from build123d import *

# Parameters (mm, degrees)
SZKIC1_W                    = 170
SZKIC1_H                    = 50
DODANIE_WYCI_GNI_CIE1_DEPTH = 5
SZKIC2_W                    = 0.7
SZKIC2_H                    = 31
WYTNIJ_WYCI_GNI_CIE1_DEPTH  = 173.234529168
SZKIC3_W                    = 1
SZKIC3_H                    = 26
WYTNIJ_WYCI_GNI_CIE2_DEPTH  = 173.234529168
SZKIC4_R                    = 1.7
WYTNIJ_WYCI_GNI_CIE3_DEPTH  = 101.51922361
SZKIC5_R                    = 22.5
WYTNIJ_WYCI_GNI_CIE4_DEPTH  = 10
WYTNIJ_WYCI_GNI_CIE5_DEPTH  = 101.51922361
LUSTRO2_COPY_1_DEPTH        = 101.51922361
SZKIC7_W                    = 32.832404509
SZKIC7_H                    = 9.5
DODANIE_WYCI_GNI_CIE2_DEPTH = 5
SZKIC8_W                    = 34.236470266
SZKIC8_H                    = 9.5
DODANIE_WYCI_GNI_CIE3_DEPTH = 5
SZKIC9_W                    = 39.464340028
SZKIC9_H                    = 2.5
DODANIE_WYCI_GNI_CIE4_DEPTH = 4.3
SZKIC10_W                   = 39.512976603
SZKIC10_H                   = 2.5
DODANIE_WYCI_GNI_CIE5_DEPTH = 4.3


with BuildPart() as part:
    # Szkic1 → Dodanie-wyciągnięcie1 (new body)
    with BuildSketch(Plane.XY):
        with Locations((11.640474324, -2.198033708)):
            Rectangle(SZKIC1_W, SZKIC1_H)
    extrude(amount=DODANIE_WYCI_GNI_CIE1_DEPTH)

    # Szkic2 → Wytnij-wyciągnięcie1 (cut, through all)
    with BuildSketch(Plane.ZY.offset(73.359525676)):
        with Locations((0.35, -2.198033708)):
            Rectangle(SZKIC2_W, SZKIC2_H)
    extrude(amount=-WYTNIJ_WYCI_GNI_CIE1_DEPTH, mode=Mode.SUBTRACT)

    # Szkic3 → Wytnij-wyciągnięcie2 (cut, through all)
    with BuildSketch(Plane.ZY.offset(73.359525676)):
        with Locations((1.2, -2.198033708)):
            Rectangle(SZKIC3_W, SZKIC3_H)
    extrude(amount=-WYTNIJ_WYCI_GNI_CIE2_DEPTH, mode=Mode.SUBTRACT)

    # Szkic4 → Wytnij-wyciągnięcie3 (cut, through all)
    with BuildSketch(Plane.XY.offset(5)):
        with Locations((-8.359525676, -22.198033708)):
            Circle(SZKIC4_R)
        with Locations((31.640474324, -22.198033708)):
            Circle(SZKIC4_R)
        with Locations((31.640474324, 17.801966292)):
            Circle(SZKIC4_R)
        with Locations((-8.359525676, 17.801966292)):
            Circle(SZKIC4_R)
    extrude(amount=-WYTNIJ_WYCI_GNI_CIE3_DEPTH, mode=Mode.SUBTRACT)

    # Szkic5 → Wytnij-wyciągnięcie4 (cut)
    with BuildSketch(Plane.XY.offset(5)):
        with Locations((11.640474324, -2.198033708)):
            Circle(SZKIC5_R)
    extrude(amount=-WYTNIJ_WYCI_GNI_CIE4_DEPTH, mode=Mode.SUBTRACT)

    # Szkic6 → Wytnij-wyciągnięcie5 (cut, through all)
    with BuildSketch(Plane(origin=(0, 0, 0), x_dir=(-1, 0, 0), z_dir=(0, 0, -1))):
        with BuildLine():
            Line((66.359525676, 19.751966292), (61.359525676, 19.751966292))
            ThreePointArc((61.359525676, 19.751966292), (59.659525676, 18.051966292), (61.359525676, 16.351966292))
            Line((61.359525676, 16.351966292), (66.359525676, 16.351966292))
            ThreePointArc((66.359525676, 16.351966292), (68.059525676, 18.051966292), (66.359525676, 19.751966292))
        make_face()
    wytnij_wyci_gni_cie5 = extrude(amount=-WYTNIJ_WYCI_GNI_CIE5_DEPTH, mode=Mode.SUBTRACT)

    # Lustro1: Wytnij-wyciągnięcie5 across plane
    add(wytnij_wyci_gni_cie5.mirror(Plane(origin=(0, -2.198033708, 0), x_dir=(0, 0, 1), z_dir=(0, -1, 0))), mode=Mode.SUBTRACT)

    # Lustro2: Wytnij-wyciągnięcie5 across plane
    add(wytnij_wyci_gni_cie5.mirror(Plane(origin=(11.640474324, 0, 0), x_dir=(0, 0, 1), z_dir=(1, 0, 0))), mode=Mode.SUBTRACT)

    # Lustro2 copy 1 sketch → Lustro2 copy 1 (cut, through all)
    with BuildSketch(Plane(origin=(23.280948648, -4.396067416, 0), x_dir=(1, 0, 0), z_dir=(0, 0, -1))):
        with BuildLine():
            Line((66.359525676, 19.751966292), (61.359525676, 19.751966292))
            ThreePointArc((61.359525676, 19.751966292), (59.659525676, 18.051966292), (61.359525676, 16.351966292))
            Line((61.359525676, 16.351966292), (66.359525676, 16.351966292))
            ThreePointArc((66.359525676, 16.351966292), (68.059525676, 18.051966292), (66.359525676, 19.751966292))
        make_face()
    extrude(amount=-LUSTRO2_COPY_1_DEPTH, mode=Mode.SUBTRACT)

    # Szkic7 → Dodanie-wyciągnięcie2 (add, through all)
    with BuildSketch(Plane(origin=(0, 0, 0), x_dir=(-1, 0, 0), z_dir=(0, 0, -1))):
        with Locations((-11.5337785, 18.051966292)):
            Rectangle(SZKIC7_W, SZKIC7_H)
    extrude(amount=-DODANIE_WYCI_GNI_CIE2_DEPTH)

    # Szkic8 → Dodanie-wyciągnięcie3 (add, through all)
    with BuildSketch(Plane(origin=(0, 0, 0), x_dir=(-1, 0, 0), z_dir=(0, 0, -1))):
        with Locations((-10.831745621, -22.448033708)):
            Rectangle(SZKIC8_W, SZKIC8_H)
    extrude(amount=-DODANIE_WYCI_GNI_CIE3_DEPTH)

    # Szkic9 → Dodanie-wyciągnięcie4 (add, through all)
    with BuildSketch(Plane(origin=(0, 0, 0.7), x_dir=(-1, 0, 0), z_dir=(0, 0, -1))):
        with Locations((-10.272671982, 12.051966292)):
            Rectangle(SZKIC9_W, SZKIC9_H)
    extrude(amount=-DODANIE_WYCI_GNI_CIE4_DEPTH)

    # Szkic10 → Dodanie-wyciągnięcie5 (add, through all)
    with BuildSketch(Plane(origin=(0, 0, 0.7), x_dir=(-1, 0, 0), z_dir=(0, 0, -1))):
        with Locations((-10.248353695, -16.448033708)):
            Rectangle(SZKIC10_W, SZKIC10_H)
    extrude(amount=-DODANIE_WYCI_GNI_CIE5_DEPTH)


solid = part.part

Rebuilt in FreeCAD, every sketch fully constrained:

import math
import FreeCAD as App
import Part
import Sketcher
Q = App.Units.Quantity


def add_polygon(sketch, points):
    """Adds a closed chain of lines whose ends are joined by coincident constraints."""
    first, n = sketch.GeometryCount, len(points)
    for a, b in zip(points, points[1:] + points[:1]):
        sketch.addGeometry(Part.LineSegment(App.Vector(*a, 0), App.Vector(*b, 0)), False)
    for i in range(n):
        sketch.addConstraint(Sketcher.Constraint("Coincident", first + i, 2, first + (i + 1) % n, 1))

doc = App.newDocument("Part")
body = doc.addObject("PartDesign::Body", "Body")

# Sketch on XY plane
sketch1 = body.newObject("Sketcher::SketchObject", "Sketch")
sketch1.AttachmentSupport = (doc.getObject("XY_Plane"), [""])
sketch1.MapMode = "FlatFace"
add_polygon(sketch1, [(-73.359526, 22.801966), (-73.359526, -27.198034), (96.640474, -27.198034), (96.640474, 22.801966)])  # lines 0-3
sketch1.addConstraint([
    Sketcher.Constraint("Vertical", 0),
    Sketcher.Constraint("Horizontal", 1),
    Sketcher.Constraint("Vertical", 2),
    Sketcher.Constraint("Horizontal", 3),
    Sketcher.Constraint("DistanceX", 1, 1, 1, 2, Q("170 mm")),
    Sketcher.Constraint("DistanceY", 0, 2, 0, 1, Q("50 mm")),
    Sketcher.Constraint("DistanceX", 0, 2, -1, 1, Q("73.359526 mm")),
    Sketcher.Constraint("DistanceY", 0, 2, -1, 1, Q("27.198034 mm")),
])
pad1 = body.newObject("PartDesign::Pad", "Pad")
pad1.Profile = sketch1
pad1.Length = 5

# Sketch on YZ plane
sketch2 = body.newObject("Sketcher::SketchObject", "Sketch001")
sketch2.AttachmentSupport = (doc.getObject("YZ_Plane"), [""])
sketch2.MapMode = "FlatFace"
sketch2.AttachmentOffset = App.Placement(App.Vector(0, 0, -73.359526), App.Rotation())
add_polygon(sketch2, [(13.301966, 0), (-17.698034, 0), (-17.698034, 0.7), (13.301966, 0.7)])  # lines 0-3
sketch2.addConstraint([
    Sketcher.Constraint("Horizontal", 0),
    Sketcher.Constraint("Vertical", 1),
    Sketcher.Constraint("Horizontal", 2),
    Sketcher.Constraint("Vertical", 3),
    Sketcher.Constraint("PointOnObject", 0, 2, -1),
    Sketcher.Constraint("DistanceX", 0, 2, 0, 1, Q("31 mm")),
    Sketcher.Constraint("DistanceY", 1, 1, 1, 2, Q("0.7 mm")),
    Sketcher.Constraint("DistanceX", 0, 2, -1, 1, Q("17.698034 mm")),
])
pocket1 = body.newObject("PartDesign::Pocket", "Pocket")
pocket1.Profile = sketch2
pocket1.Type = "ThroughAll"
pocket1.Reversed = True

# Sketch on YZ plane
sketch3 = body.newObject("Sketcher::SketchObject", "Sketch002")
sketch3.AttachmentSupport = (doc.getObject("YZ_Plane"), [""])
sketch3.MapMode = "FlatFace"
sketch3.AttachmentOffset = App.Placement(App.Vector(0, 0, -73.359526), App.Rotation())
add_polygon(sketch3, [(10.801966, 0.7), (-15.198034, 0.7), (-15.198034, 1.7), (10.801966, 1.7)])  # lines 0-3
sketch3.addConstraint([
    Sketcher.Constraint("Horizontal", 0),
    Sketcher.Constraint("Vertical", 1),
    Sketcher.Constraint("Horizontal", 2),
    Sketcher.Constraint("Vertical", 3),
    Sketcher.Constraint("DistanceX", 0, 2, 0, 1, Q("26 mm")),
    Sketcher.Constraint("DistanceY", 1, 1, 1, 2, Q("1 mm")),
    Sketcher.Constraint("DistanceY", -1, 1, 0, 2, Q("0.7 mm")),
    Sketcher.Constraint("DistanceX", 0, 2, -1, 1, Q("15.198034 mm")),
])
pocket2 = body.newObject("PartDesign::Pocket", "Pocket001")
pocket2.Profile = sketch3
pocket2.Type = "ThroughAll"
pocket2.Reversed = True

# Sketch on XY plane
sketch4 = body.newObject("Sketcher::SketchObject", "Sketch003")
sketch4.AttachmentSupport = (doc.getObject("XY_Plane"), [""])
sketch4.MapMode = "FlatFace"
sketch4.AttachmentOffset = App.Placement(App.Vector(0, 0, 5), App.Rotation())
sketch4.addGeometry([
    Part.Circle(App.Vector(-8.359526, -22.198034, 0), App.Vector(0, 0, 1), 1.7),
    Part.Circle(App.Vector(31.640474, -22.198034, 0), App.Vector(0, 0, 1), 1.7),
    Part.Circle(App.Vector(31.640474, 17.801966, 0), App.Vector(0, 0, 1), 1.7),
    Part.Circle(App.Vector(-8.359526, 17.801966, 0), App.Vector(0, 0, 1), 1.7),
], False)
sketch4.addConstraint([
    Sketcher.Constraint("Equal", 0, 1),
    Sketcher.Constraint("Equal", 1, 2),
    Sketcher.Constraint("Equal", 2, 3),
    Sketcher.Constraint("Horizontal", 0, 3, 1, 3),
    Sketcher.Constraint("Horizontal", 2, 3, 3, 3),
    Sketcher.Constraint("Vertical", 1, 3, 2, 3),
    Sketcher.Constraint("Vertical", 0, 3, 3, 3),
    Sketcher.Constraint("Diameter", 0, Q("3.4 mm")),
    Sketcher.Constraint("DistanceX", 0, 3, 1, 3, Q("40 mm")),
    Sketcher.Constraint("DistanceY", 1, 3, 2, 3, Q("40 mm")),
    Sketcher.Constraint("DistanceX", 0, 3, -1, 1, Q("8.359526 mm")),
    Sketcher.Constraint("DistanceY", 0, 3, -1, 1, Q("22.198034 mm")),
])
pocket3 = body.newObject("PartDesign::Pocket", "Pocket002")
pocket3.Profile = sketch4
pocket3.Type = "ThroughAll"

# Sketch on XY plane
sketch5 = body.newObject("Sketcher::SketchObject", "Sketch004")
sketch5.AttachmentSupport = (doc.getObject("XY_Plane"), [""])
sketch5.MapMode = "FlatFace"
sketch5.AttachmentOffset = App.Placement(App.Vector(0, 0, 5), App.Rotation())
sketch5.addGeometry(Part.Circle(App.Vector(11.640474, -2.198034, 0), App.Vector(0, 0, 1), 22.5), False)
sketch5.addConstraint([
    Sketcher.Constraint("Diameter", 0, Q("45 mm")),
    Sketcher.Constraint("DistanceX", -1, 1, 0, 3, Q("11.640474 mm")),
    Sketcher.Constraint("DistanceY", 0, 3, -1, 1, Q("2.198034 mm")),
])
pocket4 = body.newObject("PartDesign::Pocket", "Pocket003")
pocket4.Profile = sketch5
pocket4.Length = 10

# Sketch on XY plane
sketch6 = body.newObject("Sketcher::SketchObject", "Sketch005")
sketch6.AttachmentSupport = (doc.getObject("XY_Plane"), [""])
sketch6.MapMode = "FlatFace"
sketch6.addGeometry([
    Part.LineSegment(App.Vector(-66.359526, 19.751966, 0), App.Vector(-61.359526, 19.751966, 0)),
    Part.ArcOfCircle(Part.Circle(App.Vector(-61.359526, 18.051966, 0), App.Vector(0, 0, 1), 1.7), math.radians(-90), math.radians(90)),
    Part.LineSegment(App.Vector(-61.359526, 16.351966, 0), App.Vector(-66.359526, 16.351966, 0)),
    Part.ArcOfCircle(Part.Circle(App.Vector(-66.359526, 18.051966, 0), App.Vector(0, 0, 1), 1.7), math.radians(90), math.radians(270)),
], False)
sketch6.addConstraint([
    Sketcher.Constraint("Tangent", 0, 2, 1, 2),
    Sketcher.Constraint("Tangent", 1, 1, 2, 1),
    Sketcher.Constraint("Tangent", 2, 2, 3, 2),
    Sketcher.Constraint("Tangent", 3, 1, 0, 1),
    Sketcher.Constraint("Horizontal", 0),
    Sketcher.Constraint("Horizontal", 2),
    Sketcher.Constraint("Radius", 1, Q("1.7 mm")),
    Sketcher.Constraint("DistanceX", 0, 1, 0, 2, Q("5 mm")),
    Sketcher.Constraint("DistanceX", 1, 3, -1, 1, Q("61.359526 mm")),
    Sketcher.Constraint("DistanceY", -1, 1, 1, 3, Q("18.051966 mm")),
])
pocket5 = body.newObject("PartDesign::Pocket", "Pocket004")
pocket5.Profile = sketch6
pocket5.Type = "ThroughAll"
pocket5.Reversed = True
doc.recompute()

datumplane = body.newObject("PartDesign::Plane", "DatumPlane")
datumplane.AttachmentSupport = (doc.getObject("XZ_Plane"), [""])
datumplane.MapMode = "FlatFace"
datumplane.AttachmentOffset = App.Placement(App.Vector(0, 0, 2.198034), App.Rotation())
mirrored = body.newObject("PartDesign::Mirrored", "Mirrored")
mirrored.Originals = [pocket5]
mirrored.MirrorPlane = (datumplane, [""])
body.Tip = mirrored
doc.recompute()

datumplane2 = body.newObject("PartDesign::Plane", "DatumPlane001")
datumplane2.AttachmentSupport = (doc.getObject("YZ_Plane"), [""])
datumplane2.MapMode = "FlatFace"
datumplane2.AttachmentOffset = App.Placement(App.Vector(0, 0, 11.640474), App.Rotation())
mirrored2 = body.newObject("PartDesign::Mirrored", "Mirrored001")
mirrored2.Originals = [pocket5]
mirrored2.MirrorPlane = (datumplane2, [""])
body.Tip = mirrored2

# Sketch on XY plane
sketch7 = body.newObject("Sketcher::SketchObject", "Sketch006")
sketch7.AttachmentSupport = (doc.getObject("XY_Plane"), [""])
sketch7.MapMode = "FlatFace"
sketch7.addGeometry([
    Part.LineSegment(App.Vector(89.640474, -24.148034, 0), App.Vector(84.640474, -24.148034, 0)),
    Part.ArcOfCircle(Part.Circle(App.Vector(84.640474, -22.448034, 0), App.Vector(0, 0, 1), 1.7), math.radians(90), math.radians(270)),
    Part.LineSegment(App.Vector(84.640474, -20.748034, 0), App.Vector(89.640474, -20.748034, 0)),
    Part.ArcOfCircle(Part.Circle(App.Vector(89.640474, -22.448034, 0), App.Vector(0, 0, 1), 1.7), math.radians(-90), math.radians(90)),
], False)
sketch7.addConstraint([
    Sketcher.Constraint("Tangent", 0, 2, 1, 2),
    Sketcher.Constraint("Tangent", 1, 1, 2, 1),
    Sketcher.Constraint("Tangent", 2, 2, 3, 2),
    Sketcher.Constraint("Tangent", 3, 1, 0, 1),
    Sketcher.Constraint("Horizontal", 0),
    Sketcher.Constraint("Horizontal", 2),
    Sketcher.Constraint("Radius", 1, Q("1.7 mm")),
    Sketcher.Constraint("DistanceX", 0, 2, 0, 1, Q("5 mm")),
    Sketcher.Constraint("DistanceX", -1, 1, 1, 3, Q("84.640474 mm")),
    Sketcher.Constraint("DistanceY", 1, 3, -1, 1, Q("22.448034 mm")),
])
pocket6 = body.newObject("PartDesign::Pocket", "Pocket005")
pocket6.Profile = sketch7
pocket6.Type = "ThroughAll"
pocket6.Reversed = True

# Sketch on XY plane
sketch8 = body.newObject("Sketcher::SketchObject", "Sketch007")
sketch8.AttachmentSupport = (doc.getObject("XY_Plane"), [""])
sketch8.MapMode = "FlatFace"
add_polygon(sketch8, [(27.949981, 22.801966), (27.949981, 13.301966), (-4.882424, 13.301966), (-4.882424, 22.801966)])  # lines 0-3
sketch8.addConstraint([
    Sketcher.Constraint("Vertical", 0),
    Sketcher.Constraint("Horizontal", 1),
    Sketcher.Constraint("Vertical", 2),
    Sketcher.Constraint("Horizontal", 3),
    Sketcher.Constraint("DistanceY", 0, 2, 0, 1, Q("9.5 mm")),
    Sketcher.Constraint("DistanceX", 1, 2, 1, 1, Q("32.832405 mm")),
    Sketcher.Constraint("DistanceX", -1, 1, 0, 2, Q("27.949981 mm")),
    Sketcher.Constraint("DistanceY", -1, 1, 0, 2, Q("13.301966 mm")),
])
pad2 = body.newObject("PartDesign::Pad", "Pad001")
pad2.Profile = sketch8
pad2.Length = 5

# Sketch on XY plane
sketch9 = body.newObject("Sketcher::SketchObject", "Sketch008")
sketch9.AttachmentSupport = (doc.getObject("XY_Plane"), [""])
sketch9.MapMode = "FlatFace"
add_polygon(sketch9, [(27.949981, -17.698034), (27.949981, -27.198034), (-6.28649, -27.198034), (-6.28649, -17.698034)])  # lines 0-3
sketch9.addConstraint([
    Sketcher.Constraint("Vertical", 0),
    Sketcher.Constraint("Horizontal", 1),
    Sketcher.Constraint("Vertical", 2),
    Sketcher.Constraint("Horizontal", 3),
    Sketcher.Constraint("DistanceY", 0, 2, 0, 1, Q("9.5 mm")),
    Sketcher.Constraint("DistanceX", 1, 2, 1, 1, Q("34.23647 mm")),
    Sketcher.Constraint("DistanceX", -1, 1, 0, 2, Q("27.949981 mm")),
    Sketcher.Constraint("DistanceY", 0, 2, -1, 1, Q("27.198034 mm")),
])
pad3 = body.newObject("PartDesign::Pad", "Pad002")
pad3.Profile = sketch9
pad3.Length = 5

# Sketch on XY plane
sketch10 = body.newObject("Sketcher::SketchObject", "Sketch009")
sketch10.AttachmentSupport = (doc.getObject("XY_Plane"), [""])
sketch10.MapMode = "FlatFace"
sketch10.AttachmentOffset = App.Placement(App.Vector(0, 0, 0.7), App.Rotation())
add_polygon(sketch10, [(30.004842, 13.301966), (30.004842, 10.801966), (-9.459498, 10.801966), (-9.459498, 13.301966)])  # lines 0-3
sketch10.addConstraint([
    Sketcher.Constraint("Vertical", 0),
    Sketcher.Constraint("Horizontal", 1),
    Sketcher.Constraint("Vertical", 2),
    Sketcher.Constraint("Horizontal", 3),
    Sketcher.Constraint("DistanceY", 0, 2, 0, 1, Q("2.5 mm")),
    Sketcher.Constraint("DistanceX", 1, 2, 1, 1, Q("39.46434 mm")),
    Sketcher.Constraint("DistanceX", 1, 2, -1, 1, Q("9.459498 mm")),
    Sketcher.Constraint("DistanceY", -1, 1, 0, 2, Q("10.801966 mm")),
])
pad4 = body.newObject("PartDesign::Pad", "Pad003")
pad4.Profile = sketch10
pad4.Length = 4.3

# Sketch on XY plane
sketch11 = body.newObject("Sketcher::SketchObject", "Sketch010")
sketch11.AttachmentSupport = (doc.getObject("XY_Plane"), [""])
sketch11.MapMode = "FlatFace"
sketch11.AttachmentOffset = App.Placement(App.Vector(0, 0, 0.7), App.Rotation())
add_polygon(sketch11, [(30.004842, -15.198034), (30.004842, -17.698034), (-9.508135, -17.698034), (-9.508135, -15.198034)])  # lines 0-3
sketch11.addConstraint([
    Sketcher.Constraint("Vertical", 0),
    Sketcher.Constraint("Horizontal", 1),
    Sketcher.Constraint("Vertical", 2),
    Sketcher.Constraint("Horizontal", 3),
    Sketcher.Constraint("DistanceY", 0, 2, 0, 1, Q("2.5 mm")),
    Sketcher.Constraint("DistanceX", 1, 2, 1, 1, Q("39.512977 mm")),
    Sketcher.Constraint("DistanceX", -1, 1, 0, 2, Q("30.004842 mm")),
    Sketcher.Constraint("DistanceY", 0, 2, -1, 1, Q("17.698034 mm")),
])
pad5 = body.newObject("PartDesign::Pad", "Pad004")
pad5.Profile = sketch11
pad5.Length = 4.3

doc.recompute()
